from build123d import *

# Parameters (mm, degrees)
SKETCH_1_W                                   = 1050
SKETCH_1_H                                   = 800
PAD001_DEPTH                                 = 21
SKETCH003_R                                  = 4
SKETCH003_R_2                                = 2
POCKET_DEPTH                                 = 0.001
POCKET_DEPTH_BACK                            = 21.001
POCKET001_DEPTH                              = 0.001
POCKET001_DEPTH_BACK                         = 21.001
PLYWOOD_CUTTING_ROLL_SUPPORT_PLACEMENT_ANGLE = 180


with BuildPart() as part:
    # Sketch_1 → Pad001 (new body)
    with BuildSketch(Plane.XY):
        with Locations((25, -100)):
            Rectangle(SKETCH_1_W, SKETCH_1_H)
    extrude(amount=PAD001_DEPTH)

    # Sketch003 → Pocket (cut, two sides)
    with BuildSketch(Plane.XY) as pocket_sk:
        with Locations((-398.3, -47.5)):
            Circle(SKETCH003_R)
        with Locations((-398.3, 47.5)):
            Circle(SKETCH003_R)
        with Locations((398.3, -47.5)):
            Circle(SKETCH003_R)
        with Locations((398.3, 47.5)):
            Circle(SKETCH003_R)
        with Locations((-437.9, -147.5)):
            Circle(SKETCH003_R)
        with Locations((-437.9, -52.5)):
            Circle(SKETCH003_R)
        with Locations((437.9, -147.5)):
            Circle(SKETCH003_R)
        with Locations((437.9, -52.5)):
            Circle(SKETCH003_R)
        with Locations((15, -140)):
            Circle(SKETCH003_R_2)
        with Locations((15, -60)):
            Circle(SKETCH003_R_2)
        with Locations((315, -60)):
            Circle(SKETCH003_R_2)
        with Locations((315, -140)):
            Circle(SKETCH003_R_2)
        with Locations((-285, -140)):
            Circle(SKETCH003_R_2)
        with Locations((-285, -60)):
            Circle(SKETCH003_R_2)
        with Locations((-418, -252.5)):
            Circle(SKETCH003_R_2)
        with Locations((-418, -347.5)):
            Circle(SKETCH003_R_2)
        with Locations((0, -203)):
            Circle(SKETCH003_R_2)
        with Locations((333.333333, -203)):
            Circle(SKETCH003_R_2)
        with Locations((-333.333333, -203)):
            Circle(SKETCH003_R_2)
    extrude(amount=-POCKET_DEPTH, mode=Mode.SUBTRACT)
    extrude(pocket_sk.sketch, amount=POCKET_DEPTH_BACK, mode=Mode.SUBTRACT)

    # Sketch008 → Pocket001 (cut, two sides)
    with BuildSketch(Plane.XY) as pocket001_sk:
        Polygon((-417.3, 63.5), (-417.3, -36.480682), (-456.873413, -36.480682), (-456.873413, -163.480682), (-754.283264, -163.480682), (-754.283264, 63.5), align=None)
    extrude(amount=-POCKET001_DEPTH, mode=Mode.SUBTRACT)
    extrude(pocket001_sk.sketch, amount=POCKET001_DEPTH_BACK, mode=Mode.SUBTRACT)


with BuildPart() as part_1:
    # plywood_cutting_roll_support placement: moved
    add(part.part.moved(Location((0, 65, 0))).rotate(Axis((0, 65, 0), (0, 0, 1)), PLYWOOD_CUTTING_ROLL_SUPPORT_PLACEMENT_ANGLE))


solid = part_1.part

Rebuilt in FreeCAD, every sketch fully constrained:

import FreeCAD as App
import Part
import Sketcher


def add_polygon(sketch, points):
    """Adds a closed chain of lines whose ends are joined by coincident constraints."""
    first, n = sketch.GeometryCount, len(points)
    for a, b in zip(points, points[1:] + points[:1]):
        sketch.addGeometry(Part.LineSegment(App.Vector(*a, 0), App.Vector(*b, 0)), False)
    for i in range(n):
        sketch.addConstraint(Sketcher.Constraint("Coincident", first + i, 2, first + (i + 1) % n, 1))

doc = App.newDocument("Part")
body = doc.addObject("PartDesign::Body", "Body")

# Sketch on XY plane
sketch1 = body.newObject("Sketcher::SketchObject", "Sketch")
sketch1.AttachmentSupport = (doc.getObject("XY_Plane"), [""])
sketch1.MapMode = "FlatFace"
add_polygon(sketch1, [(-500, 300), (-500, -500), (550, -500), (550, 300)])  # lines 0-3
sketch1.addConstraint([
    Sketcher.Constraint("Vertical", 0),
    Sketcher.Constraint("Horizontal", 1),
    Sketcher.Constraint("Vertical", 2),
    Sketcher.Constraint("Horizontal", 3),
    Sketcher.Constraint("DistanceX", 1, 1, 1, 2, 1050.0),
    Sketcher.Constraint("DistanceY", 0, 2, 0, 1, 800.0),
    Sketcher.Constraint("DistanceX", 0, 2, -1, 1, 500.0),
    Sketcher.Constraint("DistanceY", 0, 2, -1, 1, 500.0),
])
pad1 = body.newObject("PartDesign::Pad", "Pad")
pad1.Profile = sketch1
pad1.Length = 21

# Sketch on XY plane
sketch2 = body.newObject("Sketcher::SketchObject", "Sketch001")
sketch2.AttachmentSupport = (doc.getObject("XY_Plane"), [""])
sketch2.MapMode = "FlatFace"
sketch2.addGeometry([
    Part.Circle(App.Vector(-398.3, -47.5, 0), App.Vector(0, 0, 1), 4),  # 0
    Part.Circle(App.Vector(-398.3, 47.5, 0), App.Vector(0, 0, 1), 4),  # 1
    Part.Circle(App.Vector(398.3, -47.5, 0), App.Vector(0, 0, 1), 4),  # 2
    Part.Circle(App.Vector(398.3, 47.5, 0), App.Vector(0, 0, 1), 4),  # 3
    Part.Circle(App.Vector(-437.9, -147.5, 0), App.Vector(0, 0, 1), 4),  # 4
    Part.Circle(App.Vector(-437.9, -52.5, 0), App.Vector(0, 0, 1), 4),  # 5
    Part.Circle(App.Vector(437.9, -147.5, 0), App.Vector(0, 0, 1), 4),  # 6
    Part.Circle(App.Vector(437.9, -52.5, 0), App.Vector(0, 0, 1), 4),  # 7
    Part.Circle(App.Vector(15, -140, 0), App.Vector(0, 0, 1), 2),  # 8
    Part.Circle(App.Vector(15, -60, 0), App.Vector(0, 0, 1), 2),  # 9
    Part.Circle(App.Vector(315, -60, 0), App.Vector(0, 0, 1), 2),  # 10
    Part.Circle(App.Vector(315, -140, 0), App.Vector(0, 0, 1), 2),  # 11
    Part.Circle(App.Vector(-285, -140, 0), App.Vector(0, 0, 1), 2),  # 12
    Part.Circle(App.Vector(-285, -60, 0), App.Vector(0, 0, 1), 2),  # 13
    Part.Circle(App.Vector(-418, -252.5, 0), App.Vector(0, 0, 1), 2),  # 14
    Part.Circle(App.Vector(-418, -347.5, 0), App.Vector(0, 0, 1), 2),  # 15
    Part.Circle(App.Vector(0, -203, 0), App.Vector(0, 0, 1), 2),  # 16
    Part.Circle(App.Vector(333.3, -203, 0), App.Vector(0, 0, 1), 2),  # 17
    Part.Circle(App.Vector(-333.3, -203, 0), App.Vector(0, 0, 1), 2),  # 18
], False)
sketch2.addConstraint([
    Sketcher.Constraint("Equal", 0, 1),
    Sketcher.Constraint("Equal", 1, 2),
    Sketcher.Constraint("Equal", 2, 3),
    Sketcher.Constraint("Equal", 3, 4),
    Sketcher.Constraint("Equal", 4, 5),
    Sketcher.Constraint("Equal", 5, 6),
    Sketcher.Constraint("Equal", 6, 7),
    Sketcher.Constraint("Equal", 8, 9),
    Sketcher.Constraint("Equal", 9, 10),
    Sketcher.Constraint("Equal", 10, 11),
    Sketcher.Constraint("Equal", 11, 12),
    Sketcher.Constraint("Equal", 12, 13),
    Sketcher.Constraint("Equal", 13, 14),
    Sketcher.Constraint("Equal", 14, 15),
    Sketcher.Constraint("Equal", 15, 16),
    Sketcher.Constraint("Equal", 16, 17),
    Sketcher.Constraint("Equal", 17, 18),
    Sketcher.Constraint("Symmetric", 1, 3, 2, 3, -1, 1),
    Sketcher.Constraint("Symmetric", 0, 3, 3, 3, -1, 1),
    Sketcher.Constraint("Symmetric", 0, 3, 2, 3, -2),
    Sketcher.Constraint("Symmetric", 4, 3, 6, 3, -2),
    Sketcher.Constraint("Symmetric", 5, 3, 7, 3, -2),
    Sketcher.Constraint("Symmetric", 17, 3, 18, 3, -2),
    Sketcher.Constraint("PointOnObject", 16, 3, -2),
    Sketcher.Constraint("Horizontal", 9, 3, 10, 3),
    Sketcher.Constraint("Horizontal", 8, 3, 11, 3),
    Sketcher.Constraint("Horizontal", 11, 3, 12, 3),
    Sketcher.Constraint("Horizontal", 10, 3, 13, 3),
    Sketcher.Constraint("Horizontal", 16, 3, 17, 3),
    Sketcher.Constraint("Vertical", 4, 3, 5, 3),
    Sketcher.Constraint("Vertical", 8, 3, 9, 3),
    Sketcher.Constraint("Vertical", 10, 3, 11, 3),
    Sketcher.Constraint("Vertical", 12, 3, 13, 3),
    Sketcher.Constraint("Vertical", 14, 3, 15, 3),
    Sketcher.Constraint("Diameter", 0, 8.0),
    Sketcher.Constraint("Diameter", 8, 4.0),
    Sketcher.Constraint("DistanceX", -1, 1, 8, 3, 15.0),
    Sketcher.Constraint("DistanceY", 8, 3, -1, 1, 140.0),
    Sketcher.Constraint("DistanceY", 9, 3, -1, 1, 60.0),
    Sketcher.Constraint("DistanceX", -1, 1, 10, 3, 315.0),
    Sketcher.Constraint("DistanceX", 12, 3, -1, 1, 285.0),
    Sketcher.Constraint("DistanceX", 14, 3, -1, 1, 418.0),
    Sketcher.Constraint("DistanceY", 16, 3, -1, 1, 203.0),
    Sketcher.Constraint("DistanceY", 0, 3, 1, 3, 95.0),
    Sketcher.Constraint("DistanceY", 4, 3, 0, 3, 100.0),
    Sketcher.Constraint("DistanceY", 5, 3, 0, 3, 5.0),
    Sketcher.Constraint("DistanceY", 14, 3, 4, 3, 105.0),
    Sketcher.Constraint("DistanceY", 15, 3, 14, 3, 95.0),
    Sketcher.Constraint("DistanceX", 0, 3, -1, 1, 398.3),
    Sketcher.Constraint("DistanceX", 4, 3, -1, 1, 437.9),
    Sketcher.Constraint("DistanceX", -1, 1, 17, 3, 333.333333),
])
pocket1 = body.newObject("PartDesign::Pocket", "Pocket")
pocket1.Profile = sketch2
pocket1.Type = "ThroughAll"
pocket1.Midplane = True

# Sketch on XY plane
sketch3 = body.newObject("Sketcher::SketchObject", "Sketch002")
sketch3.AttachmentSupport = (doc.getObject("XY_Plane"), [""])
sketch3.MapMode = "FlatFace"
add_polygon(sketch3, [(-417, -36), (-417, 64), (-754, 64), (-754, -163), (-457, -163), (-457, -36)])  # lines 0-5
sketch3.addConstraint([
    Sketcher.Constraint("Vertical", 0),
    Sketcher.Constraint("Horizontal", 1),
    Sketcher.Constraint("Vertical", 2),
    Sketcher.Constraint("Horizontal", 3),
    Sketcher.Constraint("Vertical", 4),
    Sketcher.Constraint("Horizontal", 5),
    Sketcher.Constraint("DistanceY", 4, 1, 4, 2, 127.0),
    Sketcher.Constraint("DistanceX", 0, 2, -1, 1, 417.3),
    Sketcher.Constraint("DistanceY", -1, 1, 0, 2, 63.5),
    Sketcher.Constraint("DistanceX", 3, 1, 3, 2, 297.409851),
    Sketcher.Constraint("DistanceY", 0, 1, 0, 2, 99.980682),
    Sketcher.Constraint("DistanceX", 1, 2, 1, 1, 336.983264),
])
pocket2 = body.newObject("PartDesign::Pocket", "Pocket001")
pocket2.Profile = sketch3
pocket2.Type = "ThroughAll"
pocket2.Midplane = True
body2 = doc.addObject("PartDesign::Body", "Body001")
doc.recompute()

body.Placement = App.Placement(App.Vector(0, 65, 0), App.Rotation(App.Vector(0, 0, 1), 180))
boolean = body2.newObject("PartDesign::Boolean", "Boolean")
boolean.Type = "Fuse"
boolean.addObjects([body])

doc.recompute()
